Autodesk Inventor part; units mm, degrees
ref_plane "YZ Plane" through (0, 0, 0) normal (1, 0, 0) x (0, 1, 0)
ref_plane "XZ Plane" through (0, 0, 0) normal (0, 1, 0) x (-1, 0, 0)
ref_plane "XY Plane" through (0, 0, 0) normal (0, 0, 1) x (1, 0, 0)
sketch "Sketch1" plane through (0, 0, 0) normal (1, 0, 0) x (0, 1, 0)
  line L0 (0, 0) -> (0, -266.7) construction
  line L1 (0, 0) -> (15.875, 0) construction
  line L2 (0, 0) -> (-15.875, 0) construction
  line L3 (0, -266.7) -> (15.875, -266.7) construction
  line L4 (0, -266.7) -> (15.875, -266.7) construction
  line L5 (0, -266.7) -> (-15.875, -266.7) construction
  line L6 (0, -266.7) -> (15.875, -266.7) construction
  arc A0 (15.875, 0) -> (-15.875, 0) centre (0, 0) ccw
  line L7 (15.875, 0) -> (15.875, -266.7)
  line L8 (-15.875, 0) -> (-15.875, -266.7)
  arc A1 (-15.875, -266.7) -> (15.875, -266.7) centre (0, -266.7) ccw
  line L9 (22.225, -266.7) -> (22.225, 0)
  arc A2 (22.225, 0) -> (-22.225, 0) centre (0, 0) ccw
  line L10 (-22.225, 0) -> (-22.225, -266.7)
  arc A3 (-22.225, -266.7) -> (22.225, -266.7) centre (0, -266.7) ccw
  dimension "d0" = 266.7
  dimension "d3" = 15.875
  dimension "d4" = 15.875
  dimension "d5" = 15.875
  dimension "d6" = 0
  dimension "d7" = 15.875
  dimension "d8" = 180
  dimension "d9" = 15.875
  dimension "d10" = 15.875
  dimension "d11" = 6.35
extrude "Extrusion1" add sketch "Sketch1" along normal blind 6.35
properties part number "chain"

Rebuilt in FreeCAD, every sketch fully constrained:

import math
import FreeCAD as App
import Part
import Sketcher

V = App.Vector
Q = App.Units.Quantity

doc = App.newDocument("Part")
params = doc.addObject("Spreadsheet::Sheet", "Params")
for row, (alias, value) in enumerate([
    ("sketch1_height", "10.5 in"),
    ("sketch1_radius", "0.625 in"),
    ("pad1_length", "0.25 in"),
], start=1):
    params.set(f"A{row}", alias)
    params.set(f"B{row}", "=" + value)
    params.setAlias(f"B{row}", alias)

body = doc.addObject("PartDesign::Body", "Body")

sketch1 = body.newObject("Sketcher::SketchObject", "Sketch")
sketch1.AttachmentSupport = (doc.getObject("YZ_Plane"), [""])
sketch1.MapMode = "FlatFace"
sketch1.addGeometry([
    Part.ArcOfCircle(Part.Circle(V(0, -266.7, 0), V(0, 0, 1), 22.225), math.radians(180), math.radians(360)),
    Part.LineSegment(V(22.225, -266.7, 0), V(22.225, 0, 0)),
    Part.ArcOfCircle(Part.Circle(V(0, 0, 0), V(0, 0, 1), 22.225), math.radians(0), math.radians(180)),
    Part.LineSegment(V(-22.225, 0, 0), V(-22.225, -266.7, 0)),
    Part.ArcOfCircle(Part.Circle(V(0, 0, 0), V(0, 0, 1), 15.875), math.radians(0), math.radians(180)),
    Part.LineSegment(V(15.875, 0, 0), V(15.875, -266.7, 0)),
    Part.ArcOfCircle(Part.Circle(V(0, -266.7, 0), V(0, 0, 1), 15.875), math.radians(180), math.radians(360)),
    Part.LineSegment(V(-15.875, -266.7, 0), V(-15.875, 0, 0)),
], False)
sketch1.addConstraint([
    Sketcher.Constraint("Tangent", 0, 2, 1, 1),
    Sketcher.Constraint("Tangent", 1, 2, 2, 1),
    Sketcher.Constraint("Tangent", 2, 2, 3, 1),
    Sketcher.Constraint("Tangent", 3, 2, 0, 1),
    Sketcher.Constraint("Tangent", 4, 1, 5, 1),
    Sketcher.Constraint("Tangent", 5, 2, 6, 2),
    Sketcher.Constraint("Tangent", 6, 1, 7, 1),
    Sketcher.Constraint("Tangent", 7, 2, 4, 2),
    Sketcher.Constraint("Vertical", 1),
    Sketcher.Constraint("Vertical", 3),
    Sketcher.Constraint("Vertical", 5),
    Sketcher.Constraint("Vertical", 7),
    Sketcher.Constraint("Coincident", 2, 3, -1, 1),
    Sketcher.Constraint("Coincident", 4, 3, -1, 1),
    Sketcher.Constraint("Horizontal", 6, 3, 0, 2),
    Sketcher.Constraint("DistanceY", 1, 1, 1, 2, Q("10.5 in")),
    Sketcher.Constraint("Radius", 4, Q("0.625 in")),
    Sketcher.Constraint("DistanceX", 4, 1, 1, 2, Q("0.25 in")),
])
sketch1.setExpression("Constraints[15]", "Params.sketch1_height")
sketch1.setExpression("Constraints[16]", "Params.sketch1_radius")
pad1 = body.newObject("PartDesign::Pad", "Pad")
pad1.Profile = sketch1
pad1.setExpression("Length", "Params.pad1_length")

doc.recompute()
